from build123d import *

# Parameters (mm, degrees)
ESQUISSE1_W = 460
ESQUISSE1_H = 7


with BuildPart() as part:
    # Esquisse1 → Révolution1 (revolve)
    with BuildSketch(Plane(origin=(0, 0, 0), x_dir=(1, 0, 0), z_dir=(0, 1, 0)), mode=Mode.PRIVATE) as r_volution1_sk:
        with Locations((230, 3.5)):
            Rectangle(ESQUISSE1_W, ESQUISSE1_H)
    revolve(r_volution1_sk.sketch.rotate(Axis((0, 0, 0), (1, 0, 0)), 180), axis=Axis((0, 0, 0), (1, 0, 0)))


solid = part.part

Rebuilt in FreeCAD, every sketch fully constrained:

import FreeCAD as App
import Part
import Sketcher
from FreeCAD import Vector


def add_polygon(sketch, points):
    """Adds a closed chain of lines whose ends are joined by coincident constraints."""
    first, n = sketch.GeometryCount, len(points)
    for a, b in zip(points, points[1:] + points[:1]):
        sketch.addGeometry(Part.LineSegment(App.Vector(*a, 0), App.Vector(*b, 0)), False)
    for i in range(n):
        sketch.addConstraint(Sketcher.Constraint("Coincident", first + i, 2, first + (i + 1) % n, 1))

doc = App.newDocument("Part")
params = doc.addObject("Spreadsheet::Sheet", "Params")
for row, (alias, value) in enumerate([
    ("sketch1_width", "460 mm"),
    ("sketch1_height", "7 mm"),
    ("revolution_angle", "360 deg"),
], start=1):
    params.set(f"A{row}", alias)
    params.set(f"B{row}", "=" + value)
    params.setAlias(f"B{row}", alias)

body = doc.addObject("PartDesign::Body", "Body")

sketch1 = doc.addObject("Sketcher::SketchObject", "Sketch")
body.addObject(sketch1)
sketch1.AttachmentSupport = (doc.XZ_Plane, [""])
sketch1.MapMode = "FlatFace"
add_polygon(sketch1, [(0, -7), (0, 0), (460, 0), (460, -7)])
sketch1.addConstraint([
    Sketcher.Constraint("Vertical", 0),
    Sketcher.Constraint("Horizontal", 1),
    Sketcher.Constraint("Vertical", 2),
    Sketcher.Constraint("Horizontal", 3),
    Sketcher.Constraint("Coincident", 0, 2, -1, 1),
    Sketcher.Constraint("DistanceX", 1, 1, 1, 2, 460.0),
    Sketcher.Constraint("DistanceY", 0, 1, 0, 2, 7.0),
])
sketch1.setExpression("Constraints[9]", "Params.sketch1_width")
sketch1.setExpression("Constraints[10]", "Params.sketch1_height")
revolution = doc.addObject("PartDesign::Revolution", "Revolution")
body.addObject(revolution)
revolution.Profile = sketch1
revolution.ReferenceAxis = (sketch1, ["H_Axis"])
revolution.setExpression("Angle", "Params.revolution_angle")

doc.recompute()
